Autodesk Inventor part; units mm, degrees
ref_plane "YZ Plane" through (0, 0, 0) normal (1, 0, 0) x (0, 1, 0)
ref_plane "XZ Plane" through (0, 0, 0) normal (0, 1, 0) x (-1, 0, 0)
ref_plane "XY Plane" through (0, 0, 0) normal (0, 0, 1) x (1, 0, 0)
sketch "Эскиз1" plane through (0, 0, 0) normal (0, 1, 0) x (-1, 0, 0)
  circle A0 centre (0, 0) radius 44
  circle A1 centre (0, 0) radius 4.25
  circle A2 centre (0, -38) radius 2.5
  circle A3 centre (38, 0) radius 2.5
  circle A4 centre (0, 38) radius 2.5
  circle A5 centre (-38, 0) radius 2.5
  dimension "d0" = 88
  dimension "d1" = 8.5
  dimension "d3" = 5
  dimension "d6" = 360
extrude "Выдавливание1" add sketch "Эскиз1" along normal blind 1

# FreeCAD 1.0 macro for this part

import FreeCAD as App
import Part
import Sketcher
from FreeCAD import Vector
Q = App.Units.Quantity

doc = App.newDocument("Part")
body = doc.addObject("PartDesign::Body", "Body")

sketch1 = body.newObject("Sketcher::SketchObject", "Sketch")
sketch1.AttachmentSupport = (doc.getObject("XZ_Plane"), [""])
sketch1.MapMode = "FlatFace"
sketch1.addGeometry([
    Part.Circle(Vector(0, 0, 0), Vector(0, 0, 1), 44),
    Part.Circle(Vector(0, -38, 0), Vector(0, 0, 1), 2.5),
    Part.Circle(Vector(38, 0, 0), Vector(0, 0, 1), 2.5),
    Part.Circle(Vector(0, 0, 0), Vector(0, 0, 1), 4.2),
    Part.Circle(Vector(-38, 0, 0), Vector(0, 0, 1), 2.5),
    Part.Circle(Vector(0, 38, 0), Vector(0, 0, 1), 2.5),
], False)
sketch1.addConstraint([
    Sketcher.Constraint("Coincident", 0, 3, -1, 1),
    Sketcher.Constraint("Coincident", 3, 3, -1, 1),
    Sketcher.Constraint("Equal", 1, 2),
    Sketcher.Constraint("Equal", 2, 4),
    Sketcher.Constraint("Equal", 4, 5),
    Sketcher.Constraint("Symmetric", 2, 3, 4, 3, -1, 1),
    Sketcher.Constraint("Symmetric", 1, 3, 5, 3, -1, 1),
    Sketcher.Constraint("PointOnObject", 1, 3, -2),
    Sketcher.Constraint("PointOnObject", 2, 3, -1),
    Sketcher.Constraint("Diameter", 0, Q("88 mm")),
    Sketcher.Constraint("Diameter", 1, Q("5 mm")),
    Sketcher.Constraint("Diameter", 3, Q("8.5 mm")),
    Sketcher.Constraint("DistanceY", 1, 3, -1, 1, Q("38 mm")),
    Sketcher.Constraint("DistanceX", -1, 1, 2, 3, Q("38 mm")),
])
pad1 = body.newObject("PartDesign::Pad", "Pad")
pad1.Profile = sketch1
pad1.Length = 1
pad1.Reversed = True

doc.recompute()
